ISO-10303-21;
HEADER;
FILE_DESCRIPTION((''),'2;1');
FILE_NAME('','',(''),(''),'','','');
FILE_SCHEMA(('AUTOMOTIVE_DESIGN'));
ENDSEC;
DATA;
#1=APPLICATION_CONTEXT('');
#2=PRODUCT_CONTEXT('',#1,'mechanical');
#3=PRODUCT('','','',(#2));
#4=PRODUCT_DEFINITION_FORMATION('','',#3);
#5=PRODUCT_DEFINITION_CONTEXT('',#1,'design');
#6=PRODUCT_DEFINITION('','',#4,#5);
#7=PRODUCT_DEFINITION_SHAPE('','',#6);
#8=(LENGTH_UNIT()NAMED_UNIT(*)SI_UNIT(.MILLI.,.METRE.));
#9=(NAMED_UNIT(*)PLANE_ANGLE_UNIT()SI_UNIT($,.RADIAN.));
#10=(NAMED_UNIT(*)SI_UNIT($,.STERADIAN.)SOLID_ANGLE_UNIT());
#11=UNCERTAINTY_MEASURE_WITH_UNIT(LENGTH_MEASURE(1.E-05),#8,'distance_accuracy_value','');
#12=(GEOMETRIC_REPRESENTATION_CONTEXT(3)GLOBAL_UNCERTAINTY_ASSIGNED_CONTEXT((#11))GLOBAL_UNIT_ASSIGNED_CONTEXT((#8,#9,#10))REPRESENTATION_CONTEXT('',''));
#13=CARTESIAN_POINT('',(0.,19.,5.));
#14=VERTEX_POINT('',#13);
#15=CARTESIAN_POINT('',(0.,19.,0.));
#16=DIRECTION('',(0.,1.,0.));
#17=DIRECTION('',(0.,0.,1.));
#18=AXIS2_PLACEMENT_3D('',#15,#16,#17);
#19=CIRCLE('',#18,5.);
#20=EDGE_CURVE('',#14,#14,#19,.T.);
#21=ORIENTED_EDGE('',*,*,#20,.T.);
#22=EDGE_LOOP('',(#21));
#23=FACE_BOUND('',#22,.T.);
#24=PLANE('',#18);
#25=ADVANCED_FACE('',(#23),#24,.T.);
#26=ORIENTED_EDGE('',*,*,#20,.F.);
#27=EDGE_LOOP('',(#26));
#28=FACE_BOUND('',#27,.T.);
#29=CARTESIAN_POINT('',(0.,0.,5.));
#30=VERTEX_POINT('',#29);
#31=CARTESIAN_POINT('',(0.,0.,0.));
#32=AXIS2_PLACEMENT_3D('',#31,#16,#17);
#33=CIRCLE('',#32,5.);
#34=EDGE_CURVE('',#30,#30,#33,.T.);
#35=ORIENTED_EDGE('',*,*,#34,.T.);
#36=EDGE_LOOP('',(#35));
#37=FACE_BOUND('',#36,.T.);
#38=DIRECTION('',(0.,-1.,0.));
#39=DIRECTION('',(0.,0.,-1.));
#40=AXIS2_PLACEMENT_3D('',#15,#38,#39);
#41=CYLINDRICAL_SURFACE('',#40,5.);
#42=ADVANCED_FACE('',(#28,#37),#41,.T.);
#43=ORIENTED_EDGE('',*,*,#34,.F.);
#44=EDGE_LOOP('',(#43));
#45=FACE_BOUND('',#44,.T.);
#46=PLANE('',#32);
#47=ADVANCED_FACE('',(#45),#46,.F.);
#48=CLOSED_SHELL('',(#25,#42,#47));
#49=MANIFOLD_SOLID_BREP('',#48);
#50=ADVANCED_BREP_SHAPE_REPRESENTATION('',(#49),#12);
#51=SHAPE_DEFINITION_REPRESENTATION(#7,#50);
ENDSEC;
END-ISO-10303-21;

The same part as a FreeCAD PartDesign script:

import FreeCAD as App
import Part
import Sketcher

doc = App.newDocument("Part")
body = doc.addObject("PartDesign::Body", "Body")

sketch1 = body.newObject("Sketcher::SketchObject", "Sketch")
sketch1.AttachmentSupport = (doc.getObject("XZ_Plane"), [""])
sketch1.MapMode = "FlatFace"
sketch1.addGeometry(Part.Circle(App.Vector(0, 0, 0), App.Vector(0, 0, 1), 5), False)
sketch1.addConstraint([
    Sketcher.Constraint("Coincident", 0, 3, -1, 1),
    Sketcher.Constraint("Diameter", 0, 10.0),
])
pad1 = body.newObject("PartDesign::Pad", "Pad")
pad1.Profile = sketch1
pad1.Length = 19
pad1.Reversed = True

doc.recompute()
